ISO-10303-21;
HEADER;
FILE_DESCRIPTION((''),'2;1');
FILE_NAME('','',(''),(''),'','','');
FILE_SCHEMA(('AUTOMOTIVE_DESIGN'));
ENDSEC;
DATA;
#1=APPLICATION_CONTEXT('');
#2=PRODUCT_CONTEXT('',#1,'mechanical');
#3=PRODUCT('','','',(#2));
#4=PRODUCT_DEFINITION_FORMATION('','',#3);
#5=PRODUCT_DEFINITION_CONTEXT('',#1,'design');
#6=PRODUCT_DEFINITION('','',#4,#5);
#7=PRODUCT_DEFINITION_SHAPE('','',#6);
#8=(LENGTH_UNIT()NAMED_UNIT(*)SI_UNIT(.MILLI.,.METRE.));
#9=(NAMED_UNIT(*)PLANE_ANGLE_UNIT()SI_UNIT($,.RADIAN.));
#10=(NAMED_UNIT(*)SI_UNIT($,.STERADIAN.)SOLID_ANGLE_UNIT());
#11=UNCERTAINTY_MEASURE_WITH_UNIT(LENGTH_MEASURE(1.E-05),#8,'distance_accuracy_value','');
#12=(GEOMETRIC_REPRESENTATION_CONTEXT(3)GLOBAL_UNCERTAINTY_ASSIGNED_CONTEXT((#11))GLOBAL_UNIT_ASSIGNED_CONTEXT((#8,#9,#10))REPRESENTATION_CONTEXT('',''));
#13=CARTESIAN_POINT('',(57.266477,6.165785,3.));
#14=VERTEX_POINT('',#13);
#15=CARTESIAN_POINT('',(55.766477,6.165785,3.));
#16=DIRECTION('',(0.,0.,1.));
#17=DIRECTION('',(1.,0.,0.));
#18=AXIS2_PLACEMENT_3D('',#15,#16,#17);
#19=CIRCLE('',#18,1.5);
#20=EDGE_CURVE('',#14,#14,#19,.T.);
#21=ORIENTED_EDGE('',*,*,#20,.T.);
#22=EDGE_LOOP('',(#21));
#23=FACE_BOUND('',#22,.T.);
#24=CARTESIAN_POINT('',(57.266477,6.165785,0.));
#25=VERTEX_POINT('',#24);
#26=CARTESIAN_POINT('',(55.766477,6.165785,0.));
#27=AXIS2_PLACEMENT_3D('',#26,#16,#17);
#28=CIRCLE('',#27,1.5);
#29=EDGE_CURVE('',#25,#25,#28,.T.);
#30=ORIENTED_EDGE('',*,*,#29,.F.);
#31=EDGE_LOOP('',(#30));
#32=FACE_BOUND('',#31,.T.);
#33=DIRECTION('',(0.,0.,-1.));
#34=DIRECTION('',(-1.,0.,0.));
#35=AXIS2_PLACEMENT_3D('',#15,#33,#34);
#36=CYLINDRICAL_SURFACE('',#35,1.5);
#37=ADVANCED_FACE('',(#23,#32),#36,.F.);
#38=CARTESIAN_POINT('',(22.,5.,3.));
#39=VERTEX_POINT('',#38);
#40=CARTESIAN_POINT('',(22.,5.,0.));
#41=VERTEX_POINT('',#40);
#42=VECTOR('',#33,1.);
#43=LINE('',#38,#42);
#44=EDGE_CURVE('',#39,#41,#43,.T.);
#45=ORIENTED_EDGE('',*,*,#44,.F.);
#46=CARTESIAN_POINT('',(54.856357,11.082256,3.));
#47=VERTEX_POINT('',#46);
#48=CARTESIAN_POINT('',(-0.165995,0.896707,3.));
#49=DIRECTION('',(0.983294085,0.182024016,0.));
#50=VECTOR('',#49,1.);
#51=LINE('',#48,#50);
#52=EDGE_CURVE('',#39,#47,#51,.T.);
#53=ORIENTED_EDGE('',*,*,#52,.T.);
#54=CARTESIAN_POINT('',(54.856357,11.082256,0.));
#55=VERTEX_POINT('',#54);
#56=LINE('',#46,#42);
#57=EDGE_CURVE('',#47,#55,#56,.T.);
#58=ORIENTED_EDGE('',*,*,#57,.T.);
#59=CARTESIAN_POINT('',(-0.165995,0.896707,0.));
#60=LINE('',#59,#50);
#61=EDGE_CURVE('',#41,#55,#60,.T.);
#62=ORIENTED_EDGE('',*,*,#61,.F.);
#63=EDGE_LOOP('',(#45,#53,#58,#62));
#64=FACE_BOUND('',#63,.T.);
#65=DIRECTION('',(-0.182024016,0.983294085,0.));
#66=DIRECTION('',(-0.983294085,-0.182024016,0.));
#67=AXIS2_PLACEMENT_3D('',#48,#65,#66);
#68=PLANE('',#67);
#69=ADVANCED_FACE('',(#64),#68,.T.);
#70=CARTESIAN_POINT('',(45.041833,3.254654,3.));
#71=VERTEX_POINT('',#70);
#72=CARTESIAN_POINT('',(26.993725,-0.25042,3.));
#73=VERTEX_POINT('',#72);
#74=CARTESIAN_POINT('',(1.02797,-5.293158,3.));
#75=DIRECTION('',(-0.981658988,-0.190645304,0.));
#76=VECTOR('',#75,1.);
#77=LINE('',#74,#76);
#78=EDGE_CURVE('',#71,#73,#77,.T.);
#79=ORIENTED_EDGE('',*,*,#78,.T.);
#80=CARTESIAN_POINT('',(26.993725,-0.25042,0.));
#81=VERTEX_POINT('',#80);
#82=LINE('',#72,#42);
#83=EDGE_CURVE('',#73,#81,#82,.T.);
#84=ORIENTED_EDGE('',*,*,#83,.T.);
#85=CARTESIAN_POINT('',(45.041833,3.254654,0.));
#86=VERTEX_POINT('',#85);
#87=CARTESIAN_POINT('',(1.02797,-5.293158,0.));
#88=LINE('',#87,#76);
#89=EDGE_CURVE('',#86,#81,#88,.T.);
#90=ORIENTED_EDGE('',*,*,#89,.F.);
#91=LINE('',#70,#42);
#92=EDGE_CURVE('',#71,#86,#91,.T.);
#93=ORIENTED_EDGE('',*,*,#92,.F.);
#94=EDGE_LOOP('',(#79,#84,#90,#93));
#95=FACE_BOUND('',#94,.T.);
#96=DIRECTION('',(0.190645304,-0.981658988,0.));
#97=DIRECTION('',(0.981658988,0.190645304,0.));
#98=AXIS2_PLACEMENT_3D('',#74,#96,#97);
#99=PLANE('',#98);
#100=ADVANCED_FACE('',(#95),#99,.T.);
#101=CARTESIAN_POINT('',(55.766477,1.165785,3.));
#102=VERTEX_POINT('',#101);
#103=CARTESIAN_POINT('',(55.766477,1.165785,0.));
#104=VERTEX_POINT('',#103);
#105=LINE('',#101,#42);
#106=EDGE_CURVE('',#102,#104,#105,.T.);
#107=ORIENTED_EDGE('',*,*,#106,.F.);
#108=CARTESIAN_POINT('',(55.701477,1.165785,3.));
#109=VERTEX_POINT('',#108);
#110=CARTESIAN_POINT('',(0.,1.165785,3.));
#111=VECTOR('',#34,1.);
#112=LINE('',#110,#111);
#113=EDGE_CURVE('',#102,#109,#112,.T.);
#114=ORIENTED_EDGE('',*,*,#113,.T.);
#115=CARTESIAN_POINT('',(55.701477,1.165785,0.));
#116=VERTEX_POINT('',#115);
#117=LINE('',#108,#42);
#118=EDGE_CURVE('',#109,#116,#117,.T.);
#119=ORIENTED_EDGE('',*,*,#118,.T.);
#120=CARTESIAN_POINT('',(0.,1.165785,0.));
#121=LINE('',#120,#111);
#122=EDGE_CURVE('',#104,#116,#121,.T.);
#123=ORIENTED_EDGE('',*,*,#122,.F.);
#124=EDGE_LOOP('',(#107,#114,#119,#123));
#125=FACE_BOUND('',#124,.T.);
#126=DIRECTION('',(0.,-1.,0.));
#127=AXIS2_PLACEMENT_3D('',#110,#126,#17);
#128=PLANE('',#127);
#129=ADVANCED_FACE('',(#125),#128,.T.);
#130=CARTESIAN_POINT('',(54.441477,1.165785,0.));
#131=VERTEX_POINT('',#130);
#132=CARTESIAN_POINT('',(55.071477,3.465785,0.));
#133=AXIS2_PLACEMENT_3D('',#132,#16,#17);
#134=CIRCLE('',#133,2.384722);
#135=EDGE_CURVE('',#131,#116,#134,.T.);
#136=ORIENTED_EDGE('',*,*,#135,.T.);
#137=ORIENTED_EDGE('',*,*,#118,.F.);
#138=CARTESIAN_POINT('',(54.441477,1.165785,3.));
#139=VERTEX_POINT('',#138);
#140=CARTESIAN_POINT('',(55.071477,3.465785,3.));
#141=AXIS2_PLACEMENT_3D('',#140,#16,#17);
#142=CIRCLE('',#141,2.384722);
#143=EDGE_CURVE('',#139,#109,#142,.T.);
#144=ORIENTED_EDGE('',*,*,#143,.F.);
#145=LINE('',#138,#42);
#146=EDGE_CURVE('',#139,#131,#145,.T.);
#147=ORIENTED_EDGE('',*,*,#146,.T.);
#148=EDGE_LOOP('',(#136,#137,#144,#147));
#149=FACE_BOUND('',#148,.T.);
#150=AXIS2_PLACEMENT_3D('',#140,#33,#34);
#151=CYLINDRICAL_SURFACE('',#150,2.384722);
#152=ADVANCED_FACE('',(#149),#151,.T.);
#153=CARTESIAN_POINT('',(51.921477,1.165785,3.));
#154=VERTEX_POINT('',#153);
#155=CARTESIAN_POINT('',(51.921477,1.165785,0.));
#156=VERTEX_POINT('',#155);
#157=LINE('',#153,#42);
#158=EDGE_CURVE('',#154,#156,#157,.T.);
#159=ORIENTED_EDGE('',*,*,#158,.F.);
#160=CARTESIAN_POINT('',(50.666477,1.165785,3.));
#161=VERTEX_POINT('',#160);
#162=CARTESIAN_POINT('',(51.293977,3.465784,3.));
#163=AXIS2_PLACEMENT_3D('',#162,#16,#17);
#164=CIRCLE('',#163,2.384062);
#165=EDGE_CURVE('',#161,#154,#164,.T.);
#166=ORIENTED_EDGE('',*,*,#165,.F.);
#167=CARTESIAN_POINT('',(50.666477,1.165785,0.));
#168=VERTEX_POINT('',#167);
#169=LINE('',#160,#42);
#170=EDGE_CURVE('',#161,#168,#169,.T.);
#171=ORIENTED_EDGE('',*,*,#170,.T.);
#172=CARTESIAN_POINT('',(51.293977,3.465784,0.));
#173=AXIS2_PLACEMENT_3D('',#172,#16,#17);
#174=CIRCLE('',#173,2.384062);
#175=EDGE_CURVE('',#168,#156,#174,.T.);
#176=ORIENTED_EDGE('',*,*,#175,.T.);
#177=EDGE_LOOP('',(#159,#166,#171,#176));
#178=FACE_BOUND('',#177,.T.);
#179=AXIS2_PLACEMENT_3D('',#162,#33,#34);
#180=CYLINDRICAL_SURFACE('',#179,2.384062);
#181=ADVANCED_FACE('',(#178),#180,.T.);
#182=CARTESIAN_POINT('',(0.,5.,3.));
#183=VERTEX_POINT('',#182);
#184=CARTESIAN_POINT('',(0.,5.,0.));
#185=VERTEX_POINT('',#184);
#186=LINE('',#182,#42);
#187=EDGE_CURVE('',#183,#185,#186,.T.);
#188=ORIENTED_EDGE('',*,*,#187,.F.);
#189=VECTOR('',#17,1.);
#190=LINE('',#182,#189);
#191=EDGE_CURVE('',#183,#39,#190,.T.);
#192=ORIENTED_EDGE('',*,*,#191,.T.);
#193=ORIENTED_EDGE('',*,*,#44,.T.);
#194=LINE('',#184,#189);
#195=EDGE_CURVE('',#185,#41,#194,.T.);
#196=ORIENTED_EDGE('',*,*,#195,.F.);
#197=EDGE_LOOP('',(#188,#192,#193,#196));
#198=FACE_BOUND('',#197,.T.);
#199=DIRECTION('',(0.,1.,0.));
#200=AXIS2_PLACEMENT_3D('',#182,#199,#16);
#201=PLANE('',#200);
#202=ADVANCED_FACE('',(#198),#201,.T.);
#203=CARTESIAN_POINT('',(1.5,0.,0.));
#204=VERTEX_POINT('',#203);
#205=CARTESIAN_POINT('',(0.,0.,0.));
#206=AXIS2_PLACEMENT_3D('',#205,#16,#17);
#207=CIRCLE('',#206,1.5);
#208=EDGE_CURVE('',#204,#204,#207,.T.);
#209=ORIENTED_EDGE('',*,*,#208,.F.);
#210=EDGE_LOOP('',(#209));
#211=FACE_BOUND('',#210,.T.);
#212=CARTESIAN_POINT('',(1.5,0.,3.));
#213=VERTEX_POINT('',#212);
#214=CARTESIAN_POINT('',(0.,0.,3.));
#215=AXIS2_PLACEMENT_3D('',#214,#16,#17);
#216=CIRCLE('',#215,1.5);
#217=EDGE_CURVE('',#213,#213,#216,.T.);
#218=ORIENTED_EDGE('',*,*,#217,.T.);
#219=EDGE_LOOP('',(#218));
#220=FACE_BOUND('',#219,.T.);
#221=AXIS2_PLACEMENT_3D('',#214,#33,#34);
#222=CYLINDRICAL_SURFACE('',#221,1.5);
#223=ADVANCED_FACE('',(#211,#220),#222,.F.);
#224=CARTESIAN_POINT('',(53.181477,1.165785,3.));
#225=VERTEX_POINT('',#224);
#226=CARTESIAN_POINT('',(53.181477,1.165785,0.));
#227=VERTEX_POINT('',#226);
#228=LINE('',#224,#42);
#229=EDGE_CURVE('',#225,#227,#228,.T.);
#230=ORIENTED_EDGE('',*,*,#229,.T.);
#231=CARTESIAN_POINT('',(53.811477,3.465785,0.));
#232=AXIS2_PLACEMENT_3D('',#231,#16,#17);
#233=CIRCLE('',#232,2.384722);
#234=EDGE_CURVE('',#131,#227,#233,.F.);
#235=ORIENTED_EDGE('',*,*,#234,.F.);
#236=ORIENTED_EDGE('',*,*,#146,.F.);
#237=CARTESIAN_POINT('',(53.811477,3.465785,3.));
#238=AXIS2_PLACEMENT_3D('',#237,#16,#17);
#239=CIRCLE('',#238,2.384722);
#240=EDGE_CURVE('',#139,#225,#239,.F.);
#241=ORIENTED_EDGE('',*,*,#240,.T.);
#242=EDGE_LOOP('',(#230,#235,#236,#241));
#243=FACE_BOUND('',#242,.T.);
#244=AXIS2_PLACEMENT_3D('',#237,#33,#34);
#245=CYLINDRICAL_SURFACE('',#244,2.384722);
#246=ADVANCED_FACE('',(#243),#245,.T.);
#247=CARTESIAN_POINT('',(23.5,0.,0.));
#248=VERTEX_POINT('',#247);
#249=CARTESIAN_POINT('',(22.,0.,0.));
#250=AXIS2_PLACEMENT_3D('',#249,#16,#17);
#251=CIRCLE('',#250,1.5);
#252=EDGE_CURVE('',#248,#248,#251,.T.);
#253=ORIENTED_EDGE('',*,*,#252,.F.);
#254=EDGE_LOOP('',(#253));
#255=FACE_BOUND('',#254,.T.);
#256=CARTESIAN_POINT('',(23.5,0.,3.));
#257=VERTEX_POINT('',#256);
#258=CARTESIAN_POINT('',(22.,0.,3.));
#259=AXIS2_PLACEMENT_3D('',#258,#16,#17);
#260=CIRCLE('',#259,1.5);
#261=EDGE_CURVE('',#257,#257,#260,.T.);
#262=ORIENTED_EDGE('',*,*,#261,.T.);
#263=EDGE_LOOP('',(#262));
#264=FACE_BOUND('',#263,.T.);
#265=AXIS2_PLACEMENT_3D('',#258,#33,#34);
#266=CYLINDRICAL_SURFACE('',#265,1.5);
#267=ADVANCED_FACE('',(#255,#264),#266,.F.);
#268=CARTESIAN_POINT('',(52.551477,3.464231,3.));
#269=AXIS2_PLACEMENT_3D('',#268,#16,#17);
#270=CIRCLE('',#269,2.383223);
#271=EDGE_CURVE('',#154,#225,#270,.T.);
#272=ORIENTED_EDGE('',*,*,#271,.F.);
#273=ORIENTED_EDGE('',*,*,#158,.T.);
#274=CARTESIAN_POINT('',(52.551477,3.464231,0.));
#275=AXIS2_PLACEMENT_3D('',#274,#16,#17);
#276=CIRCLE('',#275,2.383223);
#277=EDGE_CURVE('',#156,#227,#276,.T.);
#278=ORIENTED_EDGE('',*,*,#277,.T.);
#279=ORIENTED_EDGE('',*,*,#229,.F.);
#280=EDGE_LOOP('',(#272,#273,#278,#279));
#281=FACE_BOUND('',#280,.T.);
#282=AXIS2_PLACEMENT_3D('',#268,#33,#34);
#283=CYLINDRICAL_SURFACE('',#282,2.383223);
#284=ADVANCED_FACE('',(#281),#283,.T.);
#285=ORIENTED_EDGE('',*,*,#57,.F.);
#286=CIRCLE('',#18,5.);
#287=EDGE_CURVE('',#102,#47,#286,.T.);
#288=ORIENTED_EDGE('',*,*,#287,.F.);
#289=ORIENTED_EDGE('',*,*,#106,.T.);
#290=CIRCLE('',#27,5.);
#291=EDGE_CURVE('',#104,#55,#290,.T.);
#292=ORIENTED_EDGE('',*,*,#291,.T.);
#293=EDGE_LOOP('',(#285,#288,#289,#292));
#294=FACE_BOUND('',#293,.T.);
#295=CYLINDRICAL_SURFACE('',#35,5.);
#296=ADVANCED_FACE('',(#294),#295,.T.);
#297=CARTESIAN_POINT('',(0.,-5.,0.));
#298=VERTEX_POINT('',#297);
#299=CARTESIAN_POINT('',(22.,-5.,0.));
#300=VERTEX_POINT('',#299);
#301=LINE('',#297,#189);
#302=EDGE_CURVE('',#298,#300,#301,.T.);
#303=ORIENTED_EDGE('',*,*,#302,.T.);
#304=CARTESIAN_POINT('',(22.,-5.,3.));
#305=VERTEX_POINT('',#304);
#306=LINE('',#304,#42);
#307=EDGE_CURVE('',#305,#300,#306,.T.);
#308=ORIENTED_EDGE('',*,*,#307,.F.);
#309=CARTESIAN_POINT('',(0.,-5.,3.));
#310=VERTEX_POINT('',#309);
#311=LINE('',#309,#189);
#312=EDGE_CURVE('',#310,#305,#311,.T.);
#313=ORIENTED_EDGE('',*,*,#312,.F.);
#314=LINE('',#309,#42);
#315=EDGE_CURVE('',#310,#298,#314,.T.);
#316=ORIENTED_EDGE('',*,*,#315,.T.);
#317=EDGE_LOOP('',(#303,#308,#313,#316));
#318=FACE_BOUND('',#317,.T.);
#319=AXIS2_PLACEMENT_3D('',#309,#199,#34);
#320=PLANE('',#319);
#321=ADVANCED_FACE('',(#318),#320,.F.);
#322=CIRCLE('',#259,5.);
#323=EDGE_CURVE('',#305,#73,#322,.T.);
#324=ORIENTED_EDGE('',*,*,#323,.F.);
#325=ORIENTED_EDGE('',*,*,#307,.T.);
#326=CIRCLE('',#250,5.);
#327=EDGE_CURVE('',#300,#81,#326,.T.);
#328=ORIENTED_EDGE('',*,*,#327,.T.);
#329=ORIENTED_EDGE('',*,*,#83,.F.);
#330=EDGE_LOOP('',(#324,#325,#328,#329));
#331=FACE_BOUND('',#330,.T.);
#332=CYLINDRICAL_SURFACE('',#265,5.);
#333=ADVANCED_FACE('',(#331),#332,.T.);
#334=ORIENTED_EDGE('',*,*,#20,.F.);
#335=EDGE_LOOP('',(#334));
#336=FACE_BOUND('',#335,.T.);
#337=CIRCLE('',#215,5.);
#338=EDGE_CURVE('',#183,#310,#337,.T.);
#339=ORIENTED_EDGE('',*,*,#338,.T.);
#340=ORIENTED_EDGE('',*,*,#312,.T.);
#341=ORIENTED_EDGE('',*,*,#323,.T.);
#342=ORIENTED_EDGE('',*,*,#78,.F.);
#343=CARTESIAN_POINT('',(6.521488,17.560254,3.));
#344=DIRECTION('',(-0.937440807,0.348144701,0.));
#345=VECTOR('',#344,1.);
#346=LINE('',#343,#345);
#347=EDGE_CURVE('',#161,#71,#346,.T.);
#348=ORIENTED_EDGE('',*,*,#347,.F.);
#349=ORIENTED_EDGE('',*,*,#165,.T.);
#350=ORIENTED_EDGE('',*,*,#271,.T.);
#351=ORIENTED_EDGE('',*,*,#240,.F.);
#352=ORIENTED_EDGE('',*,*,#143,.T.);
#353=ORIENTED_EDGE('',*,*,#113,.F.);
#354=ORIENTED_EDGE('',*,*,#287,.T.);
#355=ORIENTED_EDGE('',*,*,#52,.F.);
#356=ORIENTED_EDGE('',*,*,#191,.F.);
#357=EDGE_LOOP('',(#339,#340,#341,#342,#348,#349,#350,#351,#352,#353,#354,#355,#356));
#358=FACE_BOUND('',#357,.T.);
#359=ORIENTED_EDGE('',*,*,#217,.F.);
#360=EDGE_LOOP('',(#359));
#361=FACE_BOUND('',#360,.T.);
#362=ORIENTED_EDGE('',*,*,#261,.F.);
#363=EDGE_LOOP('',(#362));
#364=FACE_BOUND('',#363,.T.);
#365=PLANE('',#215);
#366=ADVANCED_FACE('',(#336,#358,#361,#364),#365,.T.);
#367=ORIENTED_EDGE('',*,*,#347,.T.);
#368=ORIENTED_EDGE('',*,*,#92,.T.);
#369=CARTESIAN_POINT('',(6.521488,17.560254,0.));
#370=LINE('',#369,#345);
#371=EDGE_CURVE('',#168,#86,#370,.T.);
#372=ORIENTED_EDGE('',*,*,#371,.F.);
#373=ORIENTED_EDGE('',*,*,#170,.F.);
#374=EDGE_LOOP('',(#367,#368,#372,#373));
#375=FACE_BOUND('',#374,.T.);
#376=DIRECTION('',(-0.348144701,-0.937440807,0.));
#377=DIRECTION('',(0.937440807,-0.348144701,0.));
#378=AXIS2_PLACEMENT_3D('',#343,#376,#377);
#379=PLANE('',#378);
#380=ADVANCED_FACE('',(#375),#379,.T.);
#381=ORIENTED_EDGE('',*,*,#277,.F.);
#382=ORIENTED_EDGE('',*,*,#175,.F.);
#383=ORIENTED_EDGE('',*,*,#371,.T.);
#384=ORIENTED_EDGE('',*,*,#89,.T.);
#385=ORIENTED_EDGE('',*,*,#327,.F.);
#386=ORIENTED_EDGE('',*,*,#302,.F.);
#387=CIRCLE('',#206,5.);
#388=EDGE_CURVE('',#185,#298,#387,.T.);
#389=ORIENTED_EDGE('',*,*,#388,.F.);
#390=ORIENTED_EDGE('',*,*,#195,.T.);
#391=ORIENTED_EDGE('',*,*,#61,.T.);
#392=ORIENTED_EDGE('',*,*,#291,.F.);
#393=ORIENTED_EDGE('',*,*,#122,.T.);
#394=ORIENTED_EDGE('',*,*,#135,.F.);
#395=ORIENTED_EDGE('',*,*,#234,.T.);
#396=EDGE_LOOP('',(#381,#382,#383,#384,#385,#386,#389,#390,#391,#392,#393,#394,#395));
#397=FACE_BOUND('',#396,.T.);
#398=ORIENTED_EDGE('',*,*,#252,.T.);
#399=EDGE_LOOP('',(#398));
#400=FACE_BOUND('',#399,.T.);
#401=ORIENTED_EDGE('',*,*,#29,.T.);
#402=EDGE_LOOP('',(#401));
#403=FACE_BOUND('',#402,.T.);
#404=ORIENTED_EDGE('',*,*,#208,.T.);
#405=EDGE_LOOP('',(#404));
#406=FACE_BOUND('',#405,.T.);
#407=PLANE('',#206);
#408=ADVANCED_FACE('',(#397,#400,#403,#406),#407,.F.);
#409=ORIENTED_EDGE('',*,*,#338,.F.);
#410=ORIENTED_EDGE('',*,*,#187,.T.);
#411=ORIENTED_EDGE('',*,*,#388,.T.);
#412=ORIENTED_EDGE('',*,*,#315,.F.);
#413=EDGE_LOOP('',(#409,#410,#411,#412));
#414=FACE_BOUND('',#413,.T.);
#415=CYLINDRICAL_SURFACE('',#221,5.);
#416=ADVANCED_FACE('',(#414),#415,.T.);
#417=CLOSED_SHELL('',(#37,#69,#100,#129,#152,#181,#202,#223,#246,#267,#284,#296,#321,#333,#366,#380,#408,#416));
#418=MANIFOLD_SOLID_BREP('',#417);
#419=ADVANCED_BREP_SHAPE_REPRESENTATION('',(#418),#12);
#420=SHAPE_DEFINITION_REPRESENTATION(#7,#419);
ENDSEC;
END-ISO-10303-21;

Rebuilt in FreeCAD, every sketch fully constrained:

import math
import FreeCAD as App
import Part
import Sketcher

doc = App.newDocument("Part")
params = doc.addObject("Spreadsheet::Sheet", "Params")
for row, (alias, value) in enumerate([
    ("sketch1_diameter", "3 mm"),
    ("sketch1_radius", "5 mm"),
    ("sketch1_width", "22 mm"),
    ("sketch1_length", "6 mm"),
    ("pad1_length", "3 mm"),
], start=1):
    params.set(f"A{row}", alias)
    params.set(f"B{row}", "=" + value)
    params.setAlias(f"B{row}", alias)

body = doc.addObject("PartDesign::Body", "Body")

sketch1 = body.newObject("Sketcher::SketchObject", "Sketch")
sketch1.AttachmentSupport = (doc.getObject("XY_Plane"), [""])
sketch1.MapMode = "FlatFace"
sketch1.addGeometry(Part.LineSegment(App.Vector(22, 5, 0), App.Vector(0, 5, 0)), False)
sketch1.addGeometry(Part.ArcOfCircle(Part.Circle(App.Vector(0, 0, 0), App.Vector(0, 0, 1), 5), math.radians(90), math.radians(270)), False)
sketch1.addGeometry(Part.LineSegment(App.Vector(0, -5, 0), App.Vector(22, -5, 0)), False)
sketch1.addGeometry(Part.ArcOfCircle(Part.Circle(App.Vector(22, 0, 0), App.Vector(0, 0, 1), 5), math.radians(-90), math.radians(-3)), False)
sketch1.addGeometry(Part.LineSegment(App.Vector(26.99, -0.25, 0), App.Vector(45.04, 3.25, 0)), False)
sketch1.addGeometry(Part.LineSegment(App.Vector(45.04, 3.25, 0), App.Vector(50.67, 1.17, 0)), False)
sketch1.addGeometry(Part.ArcOfCircle(Part.Circle(App.Vector(51.29, 3.47, 0), App.Vector(0, 0, 1), 2.38), math.radians(-105), math.radians(-75)), False)
sketch1.addGeometry(Part.ArcOfCircle(Part.Circle(App.Vector(52.55, 3.46, 0), App.Vector(0, 0, 1), 2.38), math.radians(-105), math.radians(-75)), False)
sketch1.addGeometry(Part.ArcOfCircle(Part.Circle(App.Vector(53.81, 3.47, 0), App.Vector(0, 0, 1), 2.38), math.radians(-105), math.radians(-75)), False)
sketch1.addGeometry(Part.ArcOfCircle(Part.Circle(App.Vector(55.07, 3.47, 0), App.Vector(0, 0, 1), 2.38), math.radians(-105), math.radians(-75)), False)
sketch1.addGeometry(Part.LineSegment(App.Vector(55.7, 1.17, 0), App.Vector(55.77, 1.17, 0)), False)
sketch1.addGeometry(Part.ArcOfCircle(Part.Circle(App.Vector(55.77, 6.17, 0), App.Vector(0, 0, 1), 5), math.radians(-90), math.radians(100)), False)
sketch1.addGeometry(Part.LineSegment(App.Vector(54.86, 11.08, 0), App.Vector(22, 5, 0)), False)
sketch1.addGeometry(Part.Circle(App.Vector(0, 0, 0), App.Vector(0, 0, 1), 1.5), False)
sketch1.addGeometry(Part.Circle(App.Vector(22, 0, 0), App.Vector(0, 0, 1), 1.5), False)
sketch1.addGeometry(Part.Circle(App.Vector(55.77, 6.17, 0), App.Vector(0, 0, 1), 1.5), False)
sketch1.addConstraint(Sketcher.Constraint("Tangent", 0, 2, 1, 1))
sketch1.addConstraint(Sketcher.Constraint("Tangent", 1, 2, 2, 1))
sketch1.addConstraint(Sketcher.Constraint("Tangent", 2, 2, 3, 1))
sketch1.addConstraint(Sketcher.Constraint("Coincident", 3, 2, 4, 1))
sketch1.addConstraint(Sketcher.Constraint("Coincident", 4, 2, 5, 1))
sketch1.addConstraint(Sketcher.Constraint("Coincident", 5, 2, 6, 1))
sketch1.addConstraint(Sketcher.Constraint("Coincident", 6, 2, 7, 1))
sketch1.addConstraint(Sketcher.Constraint("Coincident", 7, 2, 8, 1))
sketch1.addConstraint(Sketcher.Constraint("Coincident", 8, 2, 9, 1))
sketch1.addConstraint(Sketcher.Constraint("Coincident", 9, 2, 10, 1))
sketch1.addConstraint(Sketcher.Constraint("Tangent", 10, 2, 11, 1))
sketch1.addConstraint(Sketcher.Constraint("Tangent", 11, 2, 12, 1))
sketch1.addConstraint(Sketcher.Constraint("Coincident", 12, 2, 0, 1))
sketch1.addConstraint(Sketcher.Constraint("Horizontal", 0))
sketch1.addConstraint(Sketcher.Constraint("Horizontal", 2))
sketch1.addConstraint(Sketcher.Constraint("Horizontal", 10))
sketch1.addConstraint(Sketcher.Constraint("Coincident", 1, 3, -1, 1))
sketch1.addConstraint(Sketcher.Constraint("Coincident", 13, 3, -1, 1))
sketch1.addConstraint(Sketcher.Constraint("Coincident", 14, 3, 3, 3))
sketch1.addConstraint(Sketcher.Constraint("Coincident", 15, 3, 11, 3))
sketch1.addConstraint(Sketcher.Constraint("Equal", 1, 3))
sketch1.addConstraint(Sketcher.Constraint("Equal", 8, 9))
sketch1.addConstraint(Sketcher.Constraint("Equal", 3, 11))
sketch1.addConstraint(Sketcher.Constraint("Equal", 13, 14))
sketch1.addConstraint(Sketcher.Constraint("Equal", 14, 15))
sketch1.addConstraint(Sketcher.Constraint("Horizontal", 6, 3, 8, 3))
sketch1.addConstraint(Sketcher.Constraint("Horizontal", 8, 3, 9, 3))
sketch1.addConstraint(Sketcher.Constraint("Horizontal", 5, 2, 6, 2))
sketch1.addConstraint(Sketcher.Constraint("Horizontal", 6, 2, 7, 2))
sketch1.addConstraint(Sketcher.Constraint("Horizontal", 7, 2, 8, 2))
sketch1.addConstraint(Sketcher.Constraint("Horizontal", 8, 2, 9, 2))
sketch1.addConstraint(Sketcher.Constraint("Vertical", 2, 2, 12, 2))
sketch1.addConstraint(Sketcher.Constraint("Diameter", 13, 3.0))
sketch1.addConstraint(Sketcher.Constraint("Radius", 1, 5.0))
sketch1.addConstraint(Sketcher.Constraint("DistanceX", 0, 2, 0, 1, 22.0))
sketch1.addConstraint(Sketcher.Constraint("Distance", 5, 6.0))
sketch1.addConstraint(Sketcher.Constraint("DistanceY", 9, 3, 11, 3, 2.7))
sketch1.addConstraint(Sketcher.Constraint("DistanceX", 10, 1, 10, 2, 0.065))
sketch1.addConstraint(Sketcher.Constraint("Radius", 6, 2.384062))
sketch1.addConstraint(Sketcher.Constraint("DistanceX", 7, 3, 8, 3, 1.26))
sketch1.addConstraint(Sketcher.Constraint("DistanceX", 8, 3, 9, 3, 1.26))
sketch1.addConstraint(Sketcher.Constraint("Radius", 7, 2.383223))
sketch1.addConstraint(Sketcher.Constraint("Distance", 12, 33.414578))
sketch1.addConstraint(Sketcher.Constraint("DistanceY", -1, 1, 7, 3, 3.464231))
sketch1.addConstraint(Sketcher.Constraint("DistanceY", 3, 2, -1, 1, 0.25042))
sketch1.addConstraint(Sketcher.Constraint("DistanceY", 4, 2, 6, 3, 0.21113))
sketch1.setExpression("Constraints[32]", "Params.sketch1_diameter")
sketch1.setExpression("Constraints[33]", "Params.sketch1_radius")
sketch1.setExpression("Constraints[34]", "Params.sketch1_width")
sketch1.setExpression("Constraints[35]", "Params.sketch1_length")
pad1 = body.newObject("PartDesign::Pad", "Pad")
pad1.Profile = sketch1
pad1.setExpression("Length", "Params.pad1_length")

doc.recompute()
